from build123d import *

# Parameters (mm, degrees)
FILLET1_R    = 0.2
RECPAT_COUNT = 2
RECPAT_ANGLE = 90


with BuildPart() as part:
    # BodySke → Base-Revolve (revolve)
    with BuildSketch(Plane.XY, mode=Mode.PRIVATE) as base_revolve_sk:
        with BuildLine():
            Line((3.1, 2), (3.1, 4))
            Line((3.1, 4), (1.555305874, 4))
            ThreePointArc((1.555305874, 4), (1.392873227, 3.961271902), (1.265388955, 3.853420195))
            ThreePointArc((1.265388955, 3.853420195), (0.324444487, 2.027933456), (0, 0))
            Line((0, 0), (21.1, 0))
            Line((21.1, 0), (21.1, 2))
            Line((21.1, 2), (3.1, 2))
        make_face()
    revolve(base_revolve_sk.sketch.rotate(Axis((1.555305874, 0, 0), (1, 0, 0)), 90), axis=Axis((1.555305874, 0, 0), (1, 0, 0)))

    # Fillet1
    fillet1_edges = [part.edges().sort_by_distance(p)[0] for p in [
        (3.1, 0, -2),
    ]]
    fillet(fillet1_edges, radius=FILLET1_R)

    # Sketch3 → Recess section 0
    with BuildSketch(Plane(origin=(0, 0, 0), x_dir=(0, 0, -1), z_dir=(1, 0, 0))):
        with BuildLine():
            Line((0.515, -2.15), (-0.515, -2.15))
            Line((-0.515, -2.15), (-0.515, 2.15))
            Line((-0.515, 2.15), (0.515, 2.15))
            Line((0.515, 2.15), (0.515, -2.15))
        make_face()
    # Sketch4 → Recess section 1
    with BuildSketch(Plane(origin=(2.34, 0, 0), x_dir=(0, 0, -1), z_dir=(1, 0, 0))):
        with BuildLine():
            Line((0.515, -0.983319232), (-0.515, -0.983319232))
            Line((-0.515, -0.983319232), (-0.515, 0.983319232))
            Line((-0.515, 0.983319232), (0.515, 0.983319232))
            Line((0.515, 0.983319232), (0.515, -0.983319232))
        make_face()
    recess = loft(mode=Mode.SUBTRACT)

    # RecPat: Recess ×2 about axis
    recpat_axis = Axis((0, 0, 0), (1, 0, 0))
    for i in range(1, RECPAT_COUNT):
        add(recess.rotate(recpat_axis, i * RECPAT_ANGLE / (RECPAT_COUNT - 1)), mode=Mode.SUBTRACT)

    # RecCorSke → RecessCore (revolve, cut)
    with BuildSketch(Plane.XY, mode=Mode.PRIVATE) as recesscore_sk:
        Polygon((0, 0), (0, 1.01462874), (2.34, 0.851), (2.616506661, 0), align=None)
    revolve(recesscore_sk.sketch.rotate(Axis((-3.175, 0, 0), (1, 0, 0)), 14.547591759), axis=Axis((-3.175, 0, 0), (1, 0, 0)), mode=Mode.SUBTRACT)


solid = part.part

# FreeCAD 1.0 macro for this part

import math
import FreeCAD as App
import Part
import Sketcher
Q = App.Units.Quantity


def edges_at(feature, points):
    """Names of the edges that pass closest to the given points."""
    edges = feature.Shape.Edges
    near = lambda p: min(range(len(edges)), key=lambda i: edges[i].distToShape(Part.Vertex(*p))[0])
    return sorted({f"Edge{near(p) + 1}" for p in points})


def add_polygon(sketch, points):
    """Adds a closed chain of lines whose ends are joined by coincident constraints."""
    first, n = sketch.GeometryCount, len(points)
    for a, b in zip(points, points[1:] + points[:1]):
        sketch.addGeometry(Part.LineSegment(App.Vector(*a, 0), App.Vector(*b, 0)), False)
    for i in range(n):
        sketch.addConstraint(Sketcher.Constraint("Coincident", first + i, 2, first + (i + 1) % n, 1))

doc = App.newDocument("Part")
params = doc.addObject("Spreadsheet::Sheet", "Params")
for row, (alias, value) in enumerate([
    ("sketch1_radius", "6.5 mm"),
    ("sketch1_width", "18 mm"),
    ("sketch1_height", "2 mm"),
    ("sketch1_radius2", "0.36 mm"),
    ("sketch1_width2", "21.1 mm"),
    ("revolution_angle", "360 deg"),
    ("fillet_radius", "0.2 mm"),
    ("sketch2_width", "4.3 mm"),
    ("sketch2_height", "1.03 mm"),
    ("sketch3_height", "1.03 mm"),
    ("groove_angle", "360 deg"),
], start=1):
    params.set(f"A{row}", alias)
    params.set(f"B{row}", "=" + value)
    params.setAlias(f"B{row}", alias)

body = doc.addObject("PartDesign::Body", "Body")

# Sketch on XY plane
sketch1 = doc.addObject("Sketcher::SketchObject", "Sketch")
body.addObject(sketch1)
sketch1.AttachmentSupport = (doc.XY_Plane, [""])
sketch1.MapMode = "FlatFace"
sketch1.addGeometry([
    Part.LineSegment(App.Vector(3.1, 2, 0), App.Vector(3.1, 4, 0)),  # 0
    Part.LineSegment(App.Vector(3.1, 4, 0), App.Vector(1.56, 4, 0)),  # 1
    Part.ArcOfCircle(Part.Circle(App.Vector(1.56, 3.64, 0), App.Vector(0, 0, 1), 0.36), math.radians(90), math.radians(144)),  # 2
    Part.ArcOfCircle(Part.Circle(App.Vector(6.5, 0, 0), App.Vector(0, 0, 1), 6.5), math.radians(144), math.radians(180)),  # 3
    Part.LineSegment(App.Vector(0, 0, 0), App.Vector(21.1, 0, 0)),  # 4
    Part.LineSegment(App.Vector(21.1, 0, 0), App.Vector(21.1, 2, 0)),  # 5
    Part.LineSegment(App.Vector(21.1, 2, 0), App.Vector(3.1, 2, 0)),  # 6
], False)
sketch1.addConstraint([
    Sketcher.Constraint("Coincident", 0, 2, 1, 1),
    Sketcher.Constraint("Tangent", 1, 2, 2, 1),
    Sketcher.Constraint("Tangent", 2, 2, 3, 1),
    Sketcher.Constraint("Coincident", 3, 2, 4, 1),
    Sketcher.Constraint("Coincident", 4, 2, 5, 1),
    Sketcher.Constraint("Coincident", 5, 2, 6, 1),
    Sketcher.Constraint("Coincident", 6, 2, 0, 1),
    Sketcher.Constraint("Vertical", 0),
    Sketcher.Constraint("Horizontal", 1),
    Sketcher.Constraint("Horizontal", 4),
    Sketcher.Constraint("Vertical", 5),
    Sketcher.Constraint("Horizontal", 6),
    Sketcher.Constraint("Coincident", 3, 2, -1, 1),
    Sketcher.Constraint("PointOnObject", 3, 3, -1),
    Sketcher.Constraint("Equal", 0, 5),
    Sketcher.Constraint("Radius", 3, 6.5),
    Sketcher.Constraint("DistanceX", 6, 2, 6, 1, 18.0),
    Sketcher.Constraint("DistanceY", 0, 1, 0, 2, 2.0),
    Sketcher.Constraint("Radius", 2, 0.36),
    Sketcher.Constraint("DistanceX", 4, 1, 4, 2, 21.1),
])
sketch1.setExpression("Constraints[15]", "Params.sketch1_radius")
sketch1.setExpression("Constraints[16]", "Params.sketch1_width")
sketch1.setExpression("Constraints[17]", "Params.sketch1_height")
sketch1.setExpression("Constraints[18]", "Params.sketch1_radius2")
sketch1.setExpression("Constraints[19]", "Params.sketch1_width2")
revolution = doc.addObject("PartDesign::Revolution", "Revolution")
body.addObject(revolution)
revolution.Profile = sketch1
revolution.ReferenceAxis = (sketch1, ["H_Axis"])
revolution.setExpression("Angle", "Params.revolution_angle")
doc.recompute()

fillet = doc.addObject("PartDesign::Fillet", "Fillet")
body.addObject(fillet)
fillet.Base = (revolution, edges_at(revolution, [(3.1, 0, -2)]))
fillet.setExpression("Radius", "Params.fillet_radius")

# Sketch on YZ plane
sketch2 = doc.addObject("Sketcher::SketchObject", "Sketch001")
body.addObject(sketch2)
sketch2.AttachmentSupport = (doc.YZ_Plane, [""])
sketch2.MapMode = "FlatFace"
add_polygon(sketch2, [(-2.1, 0.5), (-2.1, -0.5), (2.1, -0.5), (2.1, 0.5)])  # lines 0-3
sketch2.addConstraint([
    Sketcher.Constraint("Vertical", 0),
    Sketcher.Constraint("Horizontal", 1),
    Sketcher.Constraint("Vertical", 2),
    Sketcher.Constraint("Horizontal", 3),
    Sketcher.Constraint("Symmetric", 0, 2, 2, 2, -1, 1),
    Sketcher.Constraint("DistanceX", 1, 1, 1, 2, 4.3),
    Sketcher.Constraint("DistanceY", 0, 2, 0, 1, 1.03),
])
sketch2.setExpression("Constraints[9]", "Params.sketch2_width")
sketch2.setExpression("Constraints[10]", "Params.sketch2_height")

# Sketch on YZ plane
sketch3 = doc.addObject("Sketcher::SketchObject", "Sketch002")
body.addObject(sketch3)
sketch3.AttachmentSupport = (doc.YZ_Plane, [""])
sketch3.MapMode = "FlatFace"
sketch3.AttachmentOffset = App.Placement(App.Vector(0, 0, 2.34), App.Rotation())
add_polygon(sketch3, [(-1, 0.5), (-1, -0.5), (1, -0.5), (1, 0.5)])  # lines 0-3
sketch3.addConstraint([
    Sketcher.Constraint("Vertical", 0),
    Sketcher.Constraint("Horizontal", 1),
    Sketcher.Constraint("Vertical", 2),
    Sketcher.Constraint("Horizontal", 3),
    Sketcher.Constraint("Symmetric", 0, 2, 2, 2, -1, 1),
    Sketcher.Constraint("DistanceY", 0, 2, 0, 1, 1.03),
    Sketcher.Constraint("DistanceX", 1, 1, 1, 2, 1.966638),
])
sketch3.setExpression("Constraints[9]", "Params.sketch3_height")

subtractiveloft = doc.addObject("PartDesign::SubtractiveLoft", "SubtractiveLoft")
body.addObject(subtractiveloft)
subtractiveloft.Profile = sketch2
subtractiveloft.Sections = [sketch3]
doc.recompute()

polarpattern = doc.addObject("PartDesign::PolarPattern", "PolarPattern")
body.addObject(polarpattern)
polarpattern.Originals = [subtractiveloft]
polarpattern.Axis = (doc.X_Axis, [""])
polarpattern.Angle = 90
polarpattern.Occurrences = 2
body.Tip = polarpattern

# Sketch on XY plane
sketch4 = doc.addObject("Sketcher::SketchObject", "Sketch003")
body.addObject(sketch4)
sketch4.AttachmentSupport = (doc.XY_Plane, [""])
sketch4.MapMode = "FlatFace"
add_polygon(sketch4, [(0, 1), (0, 0), (2.6, 0), (2.3, 0.9)])  # lines 0-3
sketch4.addConstraint([
    Sketcher.Constraint("Vertical", 0),
    Sketcher.Constraint("Horizontal", 1),
    Sketcher.Constraint("Coincident", 0, 2, -1, 1),
    Sketcher.Constraint("Angle", 2, Q("108 deg")),
    Sketcher.Constraint("Angle", 3, Q("176 deg")),
    Sketcher.Constraint("DistanceX", -1, 1, 2, 2, 2.34),
    Sketcher.Constraint("DistanceY", -1, 1, 2, 2, 0.851),
])
groove = doc.addObject("PartDesign::Groove", "Groove")
body.addObject(groove)
groove.Profile = sketch4
groove.ReferenceAxis = (sketch4, ["H_Axis"])
groove.setExpression("Angle", "Params.groove_angle")

doc.recompute()
